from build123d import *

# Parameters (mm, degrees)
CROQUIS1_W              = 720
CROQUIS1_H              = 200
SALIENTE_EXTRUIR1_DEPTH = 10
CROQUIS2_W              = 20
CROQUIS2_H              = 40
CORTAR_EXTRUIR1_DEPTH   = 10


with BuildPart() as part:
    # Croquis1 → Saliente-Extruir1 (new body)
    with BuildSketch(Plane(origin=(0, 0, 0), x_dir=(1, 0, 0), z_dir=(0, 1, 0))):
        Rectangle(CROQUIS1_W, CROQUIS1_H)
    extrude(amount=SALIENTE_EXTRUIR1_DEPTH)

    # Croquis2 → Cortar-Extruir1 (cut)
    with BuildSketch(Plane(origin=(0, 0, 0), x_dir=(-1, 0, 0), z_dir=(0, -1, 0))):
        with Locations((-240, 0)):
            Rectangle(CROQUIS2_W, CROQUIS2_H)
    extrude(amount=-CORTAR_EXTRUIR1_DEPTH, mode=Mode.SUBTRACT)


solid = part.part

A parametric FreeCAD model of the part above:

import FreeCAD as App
import Part
import Sketcher
from FreeCAD import Vector

doc = App.newDocument("Part")
body = doc.addObject("PartDesign::Body", "Body")

sketch1 = body.newObject("Sketcher::SketchObject", "Sketch")
sketch1.AttachmentSupport = (doc.getObject("XZ_Plane"), [""])
sketch1.MapMode = "FlatFace"
sketch1.addGeometry(Part.LineSegment(Vector(-360, -100, 0), Vector(-360, 100, 0)), False)
sketch1.addGeometry(Part.LineSegment(Vector(-360, 100, 0), Vector(360, 100, 0)), False)
sketch1.addGeometry(Part.LineSegment(Vector(360, 100, 0), Vector(360, -100, 0)), False)
sketch1.addGeometry(Part.LineSegment(Vector(360, -100, 0), Vector(-360, -100, 0)), False)
sketch1.addConstraint(Sketcher.Constraint("Coincident", 0, 2, 1, 1))
sketch1.addConstraint(Sketcher.Constraint("Coincident", 1, 2, 2, 1))
sketch1.addConstraint(Sketcher.Constraint("Coincident", 2, 2, 3, 1))
sketch1.addConstraint(Sketcher.Constraint("Coincident", 3, 2, 0, 1))
sketch1.addConstraint(Sketcher.Constraint("Vertical", 0))
sketch1.addConstraint(Sketcher.Constraint("Horizontal", 1))
sketch1.addConstraint(Sketcher.Constraint("Vertical", 2))
sketch1.addConstraint(Sketcher.Constraint("Horizontal", 3))
sketch1.addConstraint(Sketcher.Constraint("Symmetric", 0, 2, 2, 2, -1, 1))
sketch1.addConstraint(Sketcher.Constraint("DistanceX", 1, 1, 1, 2, 720.0))
sketch1.addConstraint(Sketcher.Constraint("DistanceY", 0, 1, 0, 2, 200.0))
pad1 = body.newObject("PartDesign::Pad", "Pad")
pad1.Profile = sketch1
pad1.Length = 10
pad1.Reversed = True

sketch2 = body.newObject("Sketcher::SketchObject", "Sketch001")
sketch2.AttachmentSupport = (doc.getObject("XZ_Plane"), [""])
sketch2.MapMode = "FlatFace"
sketch2.addGeometry(Part.LineSegment(Vector(250, -20, 0), Vector(250, 20, 0)), False)
sketch2.addGeometry(Part.LineSegment(Vector(250, 20, 0), Vector(230, 20, 0)), False)
sketch2.addGeometry(Part.LineSegment(Vector(230, 20, 0), Vector(230, -20, 0)), False)
sketch2.addGeometry(Part.LineSegment(Vector(230, -20, 0), Vector(250, -20, 0)), False)
sketch2.addConstraint(Sketcher.Constraint("Coincident", 0, 2, 1, 1))
sketch2.addConstraint(Sketcher.Constraint("Coincident", 1, 2, 2, 1))
sketch2.addConstraint(Sketcher.Constraint("Coincident", 2, 2, 3, 1))
sketch2.addConstraint(Sketcher.Constraint("Coincident", 3, 2, 0, 1))
sketch2.addConstraint(Sketcher.Constraint("Vertical", 0))
sketch2.addConstraint(Sketcher.Constraint("Horizontal", 1))
sketch2.addConstraint(Sketcher.Constraint("Vertical", 2))
sketch2.addConstraint(Sketcher.Constraint("Horizontal", 3))
sketch2.addConstraint(Sketcher.Constraint("DistanceX", 1, 2, 1, 1, 20.0))
sketch2.addConstraint(Sketcher.Constraint("DistanceY", 0, 1, 0, 2, 40.0))
sketch2.addConstraint(Sketcher.Constraint("DistanceX", -1, 1, 0, 2, 250.0))
sketch2.addConstraint(Sketcher.Constraint("DistanceY", -1, 1, 0, 2, 20.0))
pocket1 = body.newObject("PartDesign::Pocket", "Pocket")
pocket1.Profile = sketch2
pocket1.Length = 10

doc.recompute()
